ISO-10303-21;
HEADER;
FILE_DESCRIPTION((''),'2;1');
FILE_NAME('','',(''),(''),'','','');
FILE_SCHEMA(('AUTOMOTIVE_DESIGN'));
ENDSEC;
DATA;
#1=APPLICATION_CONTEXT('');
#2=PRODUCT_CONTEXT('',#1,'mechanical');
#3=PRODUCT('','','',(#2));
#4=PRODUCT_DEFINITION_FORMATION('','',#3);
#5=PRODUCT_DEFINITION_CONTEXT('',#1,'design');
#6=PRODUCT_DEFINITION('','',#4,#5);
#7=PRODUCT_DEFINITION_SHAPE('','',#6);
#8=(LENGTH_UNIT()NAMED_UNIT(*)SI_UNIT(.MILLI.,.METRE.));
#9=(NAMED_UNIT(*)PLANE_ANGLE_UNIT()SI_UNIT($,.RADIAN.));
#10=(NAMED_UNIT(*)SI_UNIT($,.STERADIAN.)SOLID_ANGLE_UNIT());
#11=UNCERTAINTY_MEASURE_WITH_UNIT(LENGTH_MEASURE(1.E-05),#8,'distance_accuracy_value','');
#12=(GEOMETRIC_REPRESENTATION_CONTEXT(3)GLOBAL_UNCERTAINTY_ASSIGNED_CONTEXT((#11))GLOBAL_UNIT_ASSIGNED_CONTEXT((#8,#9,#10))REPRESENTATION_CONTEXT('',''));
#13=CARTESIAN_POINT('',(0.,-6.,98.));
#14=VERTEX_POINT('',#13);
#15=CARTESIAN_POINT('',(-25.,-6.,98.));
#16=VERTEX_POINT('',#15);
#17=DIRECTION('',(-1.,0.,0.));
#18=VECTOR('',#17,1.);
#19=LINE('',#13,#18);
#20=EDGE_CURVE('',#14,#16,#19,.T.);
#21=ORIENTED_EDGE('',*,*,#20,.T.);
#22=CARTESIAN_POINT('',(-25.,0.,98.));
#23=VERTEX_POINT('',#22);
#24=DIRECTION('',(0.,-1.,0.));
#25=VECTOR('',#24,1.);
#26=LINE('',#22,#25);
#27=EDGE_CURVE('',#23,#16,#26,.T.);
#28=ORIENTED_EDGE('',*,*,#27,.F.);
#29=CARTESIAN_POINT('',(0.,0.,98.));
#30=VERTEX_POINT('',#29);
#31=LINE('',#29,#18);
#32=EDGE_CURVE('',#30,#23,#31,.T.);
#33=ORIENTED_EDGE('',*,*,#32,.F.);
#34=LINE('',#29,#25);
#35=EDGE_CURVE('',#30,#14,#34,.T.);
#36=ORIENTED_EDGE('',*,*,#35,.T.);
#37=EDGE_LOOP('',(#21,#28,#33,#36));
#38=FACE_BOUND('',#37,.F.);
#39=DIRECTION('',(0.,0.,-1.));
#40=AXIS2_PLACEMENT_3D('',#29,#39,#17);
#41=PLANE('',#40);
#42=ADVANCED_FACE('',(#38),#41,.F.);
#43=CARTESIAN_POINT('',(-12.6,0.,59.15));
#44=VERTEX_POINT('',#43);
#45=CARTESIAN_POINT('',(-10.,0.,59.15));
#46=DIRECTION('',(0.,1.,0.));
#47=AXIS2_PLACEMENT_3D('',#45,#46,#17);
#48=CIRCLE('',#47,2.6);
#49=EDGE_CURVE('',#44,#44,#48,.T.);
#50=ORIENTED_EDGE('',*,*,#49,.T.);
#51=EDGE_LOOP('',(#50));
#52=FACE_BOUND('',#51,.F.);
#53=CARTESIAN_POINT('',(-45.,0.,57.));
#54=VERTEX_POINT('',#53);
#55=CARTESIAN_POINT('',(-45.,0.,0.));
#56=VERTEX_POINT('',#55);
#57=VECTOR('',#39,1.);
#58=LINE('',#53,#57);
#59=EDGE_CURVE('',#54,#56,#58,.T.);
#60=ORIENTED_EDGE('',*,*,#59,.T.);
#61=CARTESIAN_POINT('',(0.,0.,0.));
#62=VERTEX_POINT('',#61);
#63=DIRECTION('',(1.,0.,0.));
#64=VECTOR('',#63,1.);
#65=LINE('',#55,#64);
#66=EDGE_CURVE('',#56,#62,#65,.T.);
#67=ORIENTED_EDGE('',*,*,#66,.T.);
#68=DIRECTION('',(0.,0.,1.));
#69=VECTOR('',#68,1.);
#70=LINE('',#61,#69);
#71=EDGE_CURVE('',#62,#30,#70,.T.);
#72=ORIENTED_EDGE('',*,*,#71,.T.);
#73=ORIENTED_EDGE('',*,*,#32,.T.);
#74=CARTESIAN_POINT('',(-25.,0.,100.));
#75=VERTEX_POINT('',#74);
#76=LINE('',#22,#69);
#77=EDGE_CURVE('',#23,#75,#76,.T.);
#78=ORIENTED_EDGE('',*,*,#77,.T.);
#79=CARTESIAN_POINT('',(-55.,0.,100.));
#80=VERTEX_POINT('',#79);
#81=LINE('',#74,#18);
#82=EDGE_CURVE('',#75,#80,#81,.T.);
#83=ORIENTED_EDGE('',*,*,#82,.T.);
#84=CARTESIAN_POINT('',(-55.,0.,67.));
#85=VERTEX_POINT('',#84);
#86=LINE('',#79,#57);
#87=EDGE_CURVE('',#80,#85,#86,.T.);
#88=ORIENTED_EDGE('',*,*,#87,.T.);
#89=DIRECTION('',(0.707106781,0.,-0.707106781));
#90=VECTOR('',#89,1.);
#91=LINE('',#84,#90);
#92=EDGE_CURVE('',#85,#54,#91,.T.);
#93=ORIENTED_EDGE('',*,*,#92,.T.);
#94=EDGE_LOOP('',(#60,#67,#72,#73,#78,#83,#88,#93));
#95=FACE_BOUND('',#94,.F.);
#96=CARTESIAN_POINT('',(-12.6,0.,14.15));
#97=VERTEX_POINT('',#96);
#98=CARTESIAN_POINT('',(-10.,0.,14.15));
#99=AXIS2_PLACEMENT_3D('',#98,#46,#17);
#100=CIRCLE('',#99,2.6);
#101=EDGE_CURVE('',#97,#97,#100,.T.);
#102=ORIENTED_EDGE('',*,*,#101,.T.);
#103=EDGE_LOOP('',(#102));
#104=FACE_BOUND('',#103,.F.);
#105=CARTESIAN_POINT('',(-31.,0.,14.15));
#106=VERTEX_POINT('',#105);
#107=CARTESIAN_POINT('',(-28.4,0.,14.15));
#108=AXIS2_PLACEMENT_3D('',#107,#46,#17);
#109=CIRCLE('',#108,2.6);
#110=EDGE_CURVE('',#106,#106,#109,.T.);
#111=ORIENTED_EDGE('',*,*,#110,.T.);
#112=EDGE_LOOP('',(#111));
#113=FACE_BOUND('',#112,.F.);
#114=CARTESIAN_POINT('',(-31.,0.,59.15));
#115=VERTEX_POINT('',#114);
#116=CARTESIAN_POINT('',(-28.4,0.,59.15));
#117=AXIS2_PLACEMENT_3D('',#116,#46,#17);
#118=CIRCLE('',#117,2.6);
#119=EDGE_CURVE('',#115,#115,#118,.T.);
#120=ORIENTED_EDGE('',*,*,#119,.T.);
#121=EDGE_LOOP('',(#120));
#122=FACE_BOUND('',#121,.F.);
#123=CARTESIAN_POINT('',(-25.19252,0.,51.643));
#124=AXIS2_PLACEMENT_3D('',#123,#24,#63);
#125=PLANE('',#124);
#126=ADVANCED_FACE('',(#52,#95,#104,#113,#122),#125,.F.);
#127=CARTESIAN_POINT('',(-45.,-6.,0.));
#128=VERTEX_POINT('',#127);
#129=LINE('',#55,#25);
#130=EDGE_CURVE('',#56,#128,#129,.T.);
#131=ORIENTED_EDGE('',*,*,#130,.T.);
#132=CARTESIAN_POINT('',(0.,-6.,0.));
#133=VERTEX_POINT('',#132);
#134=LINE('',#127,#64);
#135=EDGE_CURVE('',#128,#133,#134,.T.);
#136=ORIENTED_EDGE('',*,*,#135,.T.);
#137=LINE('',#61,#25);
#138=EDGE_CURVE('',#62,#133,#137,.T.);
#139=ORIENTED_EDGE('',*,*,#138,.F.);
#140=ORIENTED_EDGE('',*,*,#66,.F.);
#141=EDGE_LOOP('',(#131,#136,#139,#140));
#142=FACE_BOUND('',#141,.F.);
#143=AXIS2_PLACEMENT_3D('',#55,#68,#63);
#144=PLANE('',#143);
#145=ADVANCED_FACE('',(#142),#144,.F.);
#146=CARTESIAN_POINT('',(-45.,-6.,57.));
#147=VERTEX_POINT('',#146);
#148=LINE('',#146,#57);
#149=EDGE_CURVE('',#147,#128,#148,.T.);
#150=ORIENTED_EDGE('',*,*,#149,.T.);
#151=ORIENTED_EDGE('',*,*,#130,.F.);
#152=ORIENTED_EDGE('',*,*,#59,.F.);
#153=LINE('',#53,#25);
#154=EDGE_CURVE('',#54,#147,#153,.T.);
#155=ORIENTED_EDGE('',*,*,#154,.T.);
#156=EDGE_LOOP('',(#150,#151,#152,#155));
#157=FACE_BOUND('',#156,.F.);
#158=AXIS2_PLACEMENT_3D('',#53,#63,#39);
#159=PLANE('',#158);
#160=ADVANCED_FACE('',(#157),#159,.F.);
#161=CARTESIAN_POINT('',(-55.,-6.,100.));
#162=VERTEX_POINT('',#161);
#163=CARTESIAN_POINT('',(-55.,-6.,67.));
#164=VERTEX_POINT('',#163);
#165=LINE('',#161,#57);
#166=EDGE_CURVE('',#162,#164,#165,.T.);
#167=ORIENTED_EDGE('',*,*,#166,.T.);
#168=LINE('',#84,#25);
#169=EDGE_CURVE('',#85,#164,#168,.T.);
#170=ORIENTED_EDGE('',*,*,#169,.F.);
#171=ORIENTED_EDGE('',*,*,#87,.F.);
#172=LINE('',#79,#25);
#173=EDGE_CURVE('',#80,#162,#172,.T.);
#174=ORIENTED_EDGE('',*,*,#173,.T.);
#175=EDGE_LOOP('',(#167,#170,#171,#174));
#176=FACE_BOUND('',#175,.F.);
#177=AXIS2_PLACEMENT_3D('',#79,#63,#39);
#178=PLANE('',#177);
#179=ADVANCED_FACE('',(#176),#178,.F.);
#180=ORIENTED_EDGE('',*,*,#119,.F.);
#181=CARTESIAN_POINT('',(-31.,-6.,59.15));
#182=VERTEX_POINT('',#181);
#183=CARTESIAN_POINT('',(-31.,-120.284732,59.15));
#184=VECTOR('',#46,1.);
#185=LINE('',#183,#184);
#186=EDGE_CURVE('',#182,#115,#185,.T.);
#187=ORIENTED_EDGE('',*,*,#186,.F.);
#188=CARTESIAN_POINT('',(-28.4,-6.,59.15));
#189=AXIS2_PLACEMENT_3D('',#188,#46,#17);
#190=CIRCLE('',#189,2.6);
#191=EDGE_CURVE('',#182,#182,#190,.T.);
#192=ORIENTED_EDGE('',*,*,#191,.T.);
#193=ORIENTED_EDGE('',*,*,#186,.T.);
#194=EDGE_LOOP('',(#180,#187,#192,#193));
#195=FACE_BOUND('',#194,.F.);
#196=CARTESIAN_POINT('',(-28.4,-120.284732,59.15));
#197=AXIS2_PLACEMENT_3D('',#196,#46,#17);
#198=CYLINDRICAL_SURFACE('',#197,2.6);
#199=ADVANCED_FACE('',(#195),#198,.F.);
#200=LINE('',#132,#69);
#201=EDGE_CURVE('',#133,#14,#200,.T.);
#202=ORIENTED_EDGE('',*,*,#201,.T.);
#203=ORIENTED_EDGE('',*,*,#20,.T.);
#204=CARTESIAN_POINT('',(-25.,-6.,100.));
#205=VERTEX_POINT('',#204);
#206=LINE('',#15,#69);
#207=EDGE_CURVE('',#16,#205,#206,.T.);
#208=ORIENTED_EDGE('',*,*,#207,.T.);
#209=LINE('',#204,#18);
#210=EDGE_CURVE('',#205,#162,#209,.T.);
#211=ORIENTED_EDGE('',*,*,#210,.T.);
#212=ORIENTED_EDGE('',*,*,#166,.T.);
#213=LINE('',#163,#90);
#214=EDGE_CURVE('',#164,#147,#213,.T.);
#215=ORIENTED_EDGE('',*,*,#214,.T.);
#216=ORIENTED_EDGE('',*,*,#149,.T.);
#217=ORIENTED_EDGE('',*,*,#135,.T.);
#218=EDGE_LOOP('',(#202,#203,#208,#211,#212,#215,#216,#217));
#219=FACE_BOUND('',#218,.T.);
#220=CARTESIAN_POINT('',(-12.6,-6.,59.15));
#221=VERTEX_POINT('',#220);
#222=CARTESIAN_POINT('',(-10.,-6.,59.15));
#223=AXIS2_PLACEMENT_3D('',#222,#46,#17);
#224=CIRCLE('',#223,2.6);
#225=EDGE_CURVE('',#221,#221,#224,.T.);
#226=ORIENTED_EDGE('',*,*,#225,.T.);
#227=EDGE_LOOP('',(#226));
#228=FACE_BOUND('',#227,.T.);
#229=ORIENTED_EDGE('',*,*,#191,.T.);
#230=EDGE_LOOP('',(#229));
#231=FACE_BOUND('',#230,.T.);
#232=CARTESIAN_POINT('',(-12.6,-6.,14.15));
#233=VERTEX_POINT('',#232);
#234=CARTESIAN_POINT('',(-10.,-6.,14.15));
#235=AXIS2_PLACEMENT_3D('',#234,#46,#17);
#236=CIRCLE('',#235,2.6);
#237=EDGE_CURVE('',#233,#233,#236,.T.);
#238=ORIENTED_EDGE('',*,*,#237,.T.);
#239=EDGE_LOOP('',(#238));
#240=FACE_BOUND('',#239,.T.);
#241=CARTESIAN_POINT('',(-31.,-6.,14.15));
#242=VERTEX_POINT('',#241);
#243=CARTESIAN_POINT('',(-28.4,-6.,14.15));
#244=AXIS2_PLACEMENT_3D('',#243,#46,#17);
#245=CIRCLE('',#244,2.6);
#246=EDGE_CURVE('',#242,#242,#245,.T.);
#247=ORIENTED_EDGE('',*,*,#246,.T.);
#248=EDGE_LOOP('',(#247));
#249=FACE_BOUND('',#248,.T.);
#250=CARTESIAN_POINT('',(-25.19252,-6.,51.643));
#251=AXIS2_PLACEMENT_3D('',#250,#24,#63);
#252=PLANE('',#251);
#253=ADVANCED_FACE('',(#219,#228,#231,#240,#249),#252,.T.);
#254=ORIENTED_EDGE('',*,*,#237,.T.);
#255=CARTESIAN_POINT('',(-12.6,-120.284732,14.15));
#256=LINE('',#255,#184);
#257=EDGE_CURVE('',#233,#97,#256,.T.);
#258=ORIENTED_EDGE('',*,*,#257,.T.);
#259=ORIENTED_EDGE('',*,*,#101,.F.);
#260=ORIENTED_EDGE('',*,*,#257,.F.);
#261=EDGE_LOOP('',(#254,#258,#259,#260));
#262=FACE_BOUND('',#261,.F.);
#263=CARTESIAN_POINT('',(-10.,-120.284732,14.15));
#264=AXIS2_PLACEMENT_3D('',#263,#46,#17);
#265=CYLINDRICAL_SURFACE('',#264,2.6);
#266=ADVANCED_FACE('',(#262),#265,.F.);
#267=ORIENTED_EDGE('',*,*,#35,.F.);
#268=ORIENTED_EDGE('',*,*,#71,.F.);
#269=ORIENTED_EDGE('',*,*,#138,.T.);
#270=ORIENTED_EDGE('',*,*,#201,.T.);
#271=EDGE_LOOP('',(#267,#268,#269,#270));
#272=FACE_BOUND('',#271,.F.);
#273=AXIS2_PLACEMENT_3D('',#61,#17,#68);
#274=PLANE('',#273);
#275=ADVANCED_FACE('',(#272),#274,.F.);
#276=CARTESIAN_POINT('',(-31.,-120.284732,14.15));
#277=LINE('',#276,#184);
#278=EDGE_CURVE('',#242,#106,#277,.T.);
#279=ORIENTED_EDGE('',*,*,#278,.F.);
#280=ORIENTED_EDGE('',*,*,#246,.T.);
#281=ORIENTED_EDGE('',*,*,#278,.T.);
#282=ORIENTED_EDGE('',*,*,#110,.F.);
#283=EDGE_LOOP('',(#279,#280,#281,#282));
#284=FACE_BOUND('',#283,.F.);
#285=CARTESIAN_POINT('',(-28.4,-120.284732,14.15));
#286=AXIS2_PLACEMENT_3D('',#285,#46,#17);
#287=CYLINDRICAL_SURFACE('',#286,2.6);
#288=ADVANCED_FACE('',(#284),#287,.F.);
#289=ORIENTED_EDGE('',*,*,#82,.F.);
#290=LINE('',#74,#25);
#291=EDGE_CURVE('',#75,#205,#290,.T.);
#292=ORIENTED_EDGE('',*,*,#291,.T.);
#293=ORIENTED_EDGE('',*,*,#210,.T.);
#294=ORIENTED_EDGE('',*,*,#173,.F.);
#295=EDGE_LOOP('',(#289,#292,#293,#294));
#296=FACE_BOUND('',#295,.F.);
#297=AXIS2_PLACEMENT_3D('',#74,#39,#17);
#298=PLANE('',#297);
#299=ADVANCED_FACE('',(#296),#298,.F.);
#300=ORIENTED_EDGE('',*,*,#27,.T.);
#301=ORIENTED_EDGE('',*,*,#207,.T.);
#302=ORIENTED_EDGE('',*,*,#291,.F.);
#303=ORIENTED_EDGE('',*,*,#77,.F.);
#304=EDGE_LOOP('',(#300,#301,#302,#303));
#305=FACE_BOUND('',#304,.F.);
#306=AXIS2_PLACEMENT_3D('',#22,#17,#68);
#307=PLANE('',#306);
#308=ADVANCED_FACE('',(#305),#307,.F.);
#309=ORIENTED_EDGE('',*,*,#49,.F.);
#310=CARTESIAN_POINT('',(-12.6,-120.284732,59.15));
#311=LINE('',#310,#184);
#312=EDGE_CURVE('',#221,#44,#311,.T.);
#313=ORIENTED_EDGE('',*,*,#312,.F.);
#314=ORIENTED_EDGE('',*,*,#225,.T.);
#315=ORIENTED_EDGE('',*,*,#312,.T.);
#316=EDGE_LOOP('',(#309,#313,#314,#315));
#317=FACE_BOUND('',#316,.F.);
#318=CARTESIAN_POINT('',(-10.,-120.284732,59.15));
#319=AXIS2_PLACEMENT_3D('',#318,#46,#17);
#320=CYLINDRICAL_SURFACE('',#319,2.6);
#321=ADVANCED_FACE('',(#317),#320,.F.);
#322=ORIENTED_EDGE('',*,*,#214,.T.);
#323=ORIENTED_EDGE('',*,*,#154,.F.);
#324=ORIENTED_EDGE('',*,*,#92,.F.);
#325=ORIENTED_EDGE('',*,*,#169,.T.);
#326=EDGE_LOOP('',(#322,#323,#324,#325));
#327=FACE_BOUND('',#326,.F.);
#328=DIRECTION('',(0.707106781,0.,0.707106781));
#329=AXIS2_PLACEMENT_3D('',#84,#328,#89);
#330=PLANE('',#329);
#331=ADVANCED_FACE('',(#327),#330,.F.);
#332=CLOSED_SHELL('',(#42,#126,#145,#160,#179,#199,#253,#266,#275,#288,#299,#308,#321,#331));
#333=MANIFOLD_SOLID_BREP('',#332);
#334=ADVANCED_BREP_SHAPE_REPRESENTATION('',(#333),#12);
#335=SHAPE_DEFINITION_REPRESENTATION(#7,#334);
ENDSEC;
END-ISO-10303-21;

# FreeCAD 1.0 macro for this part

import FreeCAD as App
import Part
import Sketcher

V = App.Vector


def add_polygon(sketch, points):
    """Adds a closed chain of lines whose ends are joined by coincident constraints."""
    first, n = sketch.GeometryCount, len(points)
    for a, b in zip(points, points[1:] + points[:1]):
        sketch.addGeometry(Part.LineSegment(App.Vector(*a, 0), App.Vector(*b, 0)), False)
    for i in range(n):
        sketch.addConstraint(Sketcher.Constraint("Coincident", first + i, 2, first + (i + 1) % n, 1))

doc = App.newDocument("Part")
params = doc.addObject("Spreadsheet::Sheet", "Params")
for row, (alias, value) in enumerate([
    ("sketch1_width", "45 mm"),
    ("sketch1_width2", "25 mm"),
    ("sketch1_width3", "30 mm"),
    ("sketch1_height", "98 mm"),
    ("sketch1_height2", "2 mm"),
    ("pad1_length", "6 mm"),
    ("sketch2_diameter", "5.2 mm"),
    ("hole_diameter", "5.2 mm"),
], start=1):
    params.set(f"A{row}", alias)
    params.set(f"B{row}", "=" + value)
    params.setAlias(f"B{row}", alias)

body = doc.addObject("PartDesign::Body", "Body")

# Sketch on XZ plane
sketch1 = doc.addObject("Sketcher::SketchObject", "Sketch")
body.addObject(sketch1)
sketch1.AttachmentSupport = (doc.XZ_Plane, [""])
sketch1.MapMode = "FlatFace"
add_polygon(sketch1, [(-45, 0), (0, 0), (0, 98), (-25, 98), (-25, 100), (-55, 100), (-55, 67), (-45, 57)])  # lines 0-7
sketch1.addConstraint(Sketcher.Constraint("Horizontal", 0))
sketch1.addConstraint(Sketcher.Constraint("Vertical", 1))
sketch1.addConstraint(Sketcher.Constraint("Horizontal", 2))
sketch1.addConstraint(Sketcher.Constraint("Vertical", 3))
sketch1.addConstraint(Sketcher.Constraint("Horizontal", 4))
sketch1.addConstraint(Sketcher.Constraint("Vertical", 5))
sketch1.addConstraint(Sketcher.Constraint("Vertical", 7))
sketch1.addConstraint(Sketcher.Constraint("Coincident", 0, 2, -1, 1))
sketch1.addConstraint(Sketcher.Constraint("DistanceX", 0, 1, 0, 2, 45.0))
sketch1.addConstraint(Sketcher.Constraint("DistanceX", 2, 2, 2, 1, 25.0))
sketch1.addConstraint(Sketcher.Constraint("DistanceX", 4, 2, 4, 1, 30.0))
sketch1.addConstraint(Sketcher.Constraint("DistanceY", 1, 1, 1, 2, 98.0))
sketch1.addConstraint(Sketcher.Constraint("DistanceY", 3, 1, 3, 2, 2.0))
sketch1.addConstraint(Sketcher.Constraint("DistanceY", 5, 2, 5, 1, 33.0))
sketch1.addConstraint(Sketcher.Constraint("DistanceY", 7, 2, 7, 1, 57.0))
sketch1.setExpression("Constraints[16]", "Params.sketch1_width")
sketch1.setExpression("Constraints[17]", "Params.sketch1_width2")
sketch1.setExpression("Constraints[18]", "Params.sketch1_width3")
sketch1.setExpression("Constraints[19]", "Params.sketch1_height")
sketch1.setExpression("Constraints[20]", "Params.sketch1_height2")
pad1 = doc.addObject("PartDesign::Pad", "Pad")
body.addObject(pad1)
pad1.Profile = sketch1
pad1.setExpression("Length", "Params.pad1_length")

# Sketch on XZ plane
sketch2 = doc.addObject("Sketcher::SketchObject", "Sketch001")
body.addObject(sketch2)
sketch2.AttachmentSupport = (doc.XZ_Plane, [""])
sketch2.MapMode = "FlatFace"
sketch2.AttachmentOffset = App.Placement(V(0, 0, 6), App.Rotation())
sketch2.addGeometry(Part.Circle(V(-10, 59.1, 0), V(0, 0, 1), 2.6), False)
sketch2.addGeometry(Part.Circle(V(-28.4, 59.1, 0), V(0, 0, 1), 2.6), False)
sketch2.addGeometry(Part.Circle(V(-28.4, 14.2, 0), V(0, 0, 1), 2.6), False)
sketch2.addGeometry(Part.Circle(V(-10, 14.2, 0), V(0, 0, 1), 2.6), False)
sketch2.addConstraint(Sketcher.Constraint("Equal", 0, 1))
sketch2.addConstraint(Sketcher.Constraint("Equal", 1, 2))
sketch2.addConstraint(Sketcher.Constraint("Equal", 2, 3))
sketch2.addConstraint(Sketcher.Constraint("Horizontal", 0, 3, 1, 3))
sketch2.addConstraint(Sketcher.Constraint("Horizontal", 2, 3, 3, 3))
sketch2.addConstraint(Sketcher.Constraint("Vertical", 1, 3, 2, 3))
sketch2.addConstraint(Sketcher.Constraint("Vertical", 0, 3, 3, 3))
sketch2.addConstraint(Sketcher.Constraint("Diameter", 0, 5.2))
sketch2.addConstraint(Sketcher.Constraint("DistanceX", 0, 3, -1, 1, 10.0))
sketch2.addConstraint(Sketcher.Constraint("DistanceY", 2, 3, 1, 3, 45.0))
sketch2.addConstraint(Sketcher.Constraint("DistanceX", 1, 3, -1, 1, 28.4))
sketch2.addConstraint(Sketcher.Constraint("DistanceY", -1, 1, 0, 3, 59.15))
sketch2.setExpression("Constraints[7]", "Params.sketch2_diameter")
doc.recompute()
hole = doc.addObject("PartDesign::Hole", "Hole")
body.addObject(hole)
hole.Profile = sketch2
hole.ThreadType = "None"
hole.setExpression("Diameter", "Params.hole_diameter")
hole.DepthType = "ThroughAll"

doc.recompute()
